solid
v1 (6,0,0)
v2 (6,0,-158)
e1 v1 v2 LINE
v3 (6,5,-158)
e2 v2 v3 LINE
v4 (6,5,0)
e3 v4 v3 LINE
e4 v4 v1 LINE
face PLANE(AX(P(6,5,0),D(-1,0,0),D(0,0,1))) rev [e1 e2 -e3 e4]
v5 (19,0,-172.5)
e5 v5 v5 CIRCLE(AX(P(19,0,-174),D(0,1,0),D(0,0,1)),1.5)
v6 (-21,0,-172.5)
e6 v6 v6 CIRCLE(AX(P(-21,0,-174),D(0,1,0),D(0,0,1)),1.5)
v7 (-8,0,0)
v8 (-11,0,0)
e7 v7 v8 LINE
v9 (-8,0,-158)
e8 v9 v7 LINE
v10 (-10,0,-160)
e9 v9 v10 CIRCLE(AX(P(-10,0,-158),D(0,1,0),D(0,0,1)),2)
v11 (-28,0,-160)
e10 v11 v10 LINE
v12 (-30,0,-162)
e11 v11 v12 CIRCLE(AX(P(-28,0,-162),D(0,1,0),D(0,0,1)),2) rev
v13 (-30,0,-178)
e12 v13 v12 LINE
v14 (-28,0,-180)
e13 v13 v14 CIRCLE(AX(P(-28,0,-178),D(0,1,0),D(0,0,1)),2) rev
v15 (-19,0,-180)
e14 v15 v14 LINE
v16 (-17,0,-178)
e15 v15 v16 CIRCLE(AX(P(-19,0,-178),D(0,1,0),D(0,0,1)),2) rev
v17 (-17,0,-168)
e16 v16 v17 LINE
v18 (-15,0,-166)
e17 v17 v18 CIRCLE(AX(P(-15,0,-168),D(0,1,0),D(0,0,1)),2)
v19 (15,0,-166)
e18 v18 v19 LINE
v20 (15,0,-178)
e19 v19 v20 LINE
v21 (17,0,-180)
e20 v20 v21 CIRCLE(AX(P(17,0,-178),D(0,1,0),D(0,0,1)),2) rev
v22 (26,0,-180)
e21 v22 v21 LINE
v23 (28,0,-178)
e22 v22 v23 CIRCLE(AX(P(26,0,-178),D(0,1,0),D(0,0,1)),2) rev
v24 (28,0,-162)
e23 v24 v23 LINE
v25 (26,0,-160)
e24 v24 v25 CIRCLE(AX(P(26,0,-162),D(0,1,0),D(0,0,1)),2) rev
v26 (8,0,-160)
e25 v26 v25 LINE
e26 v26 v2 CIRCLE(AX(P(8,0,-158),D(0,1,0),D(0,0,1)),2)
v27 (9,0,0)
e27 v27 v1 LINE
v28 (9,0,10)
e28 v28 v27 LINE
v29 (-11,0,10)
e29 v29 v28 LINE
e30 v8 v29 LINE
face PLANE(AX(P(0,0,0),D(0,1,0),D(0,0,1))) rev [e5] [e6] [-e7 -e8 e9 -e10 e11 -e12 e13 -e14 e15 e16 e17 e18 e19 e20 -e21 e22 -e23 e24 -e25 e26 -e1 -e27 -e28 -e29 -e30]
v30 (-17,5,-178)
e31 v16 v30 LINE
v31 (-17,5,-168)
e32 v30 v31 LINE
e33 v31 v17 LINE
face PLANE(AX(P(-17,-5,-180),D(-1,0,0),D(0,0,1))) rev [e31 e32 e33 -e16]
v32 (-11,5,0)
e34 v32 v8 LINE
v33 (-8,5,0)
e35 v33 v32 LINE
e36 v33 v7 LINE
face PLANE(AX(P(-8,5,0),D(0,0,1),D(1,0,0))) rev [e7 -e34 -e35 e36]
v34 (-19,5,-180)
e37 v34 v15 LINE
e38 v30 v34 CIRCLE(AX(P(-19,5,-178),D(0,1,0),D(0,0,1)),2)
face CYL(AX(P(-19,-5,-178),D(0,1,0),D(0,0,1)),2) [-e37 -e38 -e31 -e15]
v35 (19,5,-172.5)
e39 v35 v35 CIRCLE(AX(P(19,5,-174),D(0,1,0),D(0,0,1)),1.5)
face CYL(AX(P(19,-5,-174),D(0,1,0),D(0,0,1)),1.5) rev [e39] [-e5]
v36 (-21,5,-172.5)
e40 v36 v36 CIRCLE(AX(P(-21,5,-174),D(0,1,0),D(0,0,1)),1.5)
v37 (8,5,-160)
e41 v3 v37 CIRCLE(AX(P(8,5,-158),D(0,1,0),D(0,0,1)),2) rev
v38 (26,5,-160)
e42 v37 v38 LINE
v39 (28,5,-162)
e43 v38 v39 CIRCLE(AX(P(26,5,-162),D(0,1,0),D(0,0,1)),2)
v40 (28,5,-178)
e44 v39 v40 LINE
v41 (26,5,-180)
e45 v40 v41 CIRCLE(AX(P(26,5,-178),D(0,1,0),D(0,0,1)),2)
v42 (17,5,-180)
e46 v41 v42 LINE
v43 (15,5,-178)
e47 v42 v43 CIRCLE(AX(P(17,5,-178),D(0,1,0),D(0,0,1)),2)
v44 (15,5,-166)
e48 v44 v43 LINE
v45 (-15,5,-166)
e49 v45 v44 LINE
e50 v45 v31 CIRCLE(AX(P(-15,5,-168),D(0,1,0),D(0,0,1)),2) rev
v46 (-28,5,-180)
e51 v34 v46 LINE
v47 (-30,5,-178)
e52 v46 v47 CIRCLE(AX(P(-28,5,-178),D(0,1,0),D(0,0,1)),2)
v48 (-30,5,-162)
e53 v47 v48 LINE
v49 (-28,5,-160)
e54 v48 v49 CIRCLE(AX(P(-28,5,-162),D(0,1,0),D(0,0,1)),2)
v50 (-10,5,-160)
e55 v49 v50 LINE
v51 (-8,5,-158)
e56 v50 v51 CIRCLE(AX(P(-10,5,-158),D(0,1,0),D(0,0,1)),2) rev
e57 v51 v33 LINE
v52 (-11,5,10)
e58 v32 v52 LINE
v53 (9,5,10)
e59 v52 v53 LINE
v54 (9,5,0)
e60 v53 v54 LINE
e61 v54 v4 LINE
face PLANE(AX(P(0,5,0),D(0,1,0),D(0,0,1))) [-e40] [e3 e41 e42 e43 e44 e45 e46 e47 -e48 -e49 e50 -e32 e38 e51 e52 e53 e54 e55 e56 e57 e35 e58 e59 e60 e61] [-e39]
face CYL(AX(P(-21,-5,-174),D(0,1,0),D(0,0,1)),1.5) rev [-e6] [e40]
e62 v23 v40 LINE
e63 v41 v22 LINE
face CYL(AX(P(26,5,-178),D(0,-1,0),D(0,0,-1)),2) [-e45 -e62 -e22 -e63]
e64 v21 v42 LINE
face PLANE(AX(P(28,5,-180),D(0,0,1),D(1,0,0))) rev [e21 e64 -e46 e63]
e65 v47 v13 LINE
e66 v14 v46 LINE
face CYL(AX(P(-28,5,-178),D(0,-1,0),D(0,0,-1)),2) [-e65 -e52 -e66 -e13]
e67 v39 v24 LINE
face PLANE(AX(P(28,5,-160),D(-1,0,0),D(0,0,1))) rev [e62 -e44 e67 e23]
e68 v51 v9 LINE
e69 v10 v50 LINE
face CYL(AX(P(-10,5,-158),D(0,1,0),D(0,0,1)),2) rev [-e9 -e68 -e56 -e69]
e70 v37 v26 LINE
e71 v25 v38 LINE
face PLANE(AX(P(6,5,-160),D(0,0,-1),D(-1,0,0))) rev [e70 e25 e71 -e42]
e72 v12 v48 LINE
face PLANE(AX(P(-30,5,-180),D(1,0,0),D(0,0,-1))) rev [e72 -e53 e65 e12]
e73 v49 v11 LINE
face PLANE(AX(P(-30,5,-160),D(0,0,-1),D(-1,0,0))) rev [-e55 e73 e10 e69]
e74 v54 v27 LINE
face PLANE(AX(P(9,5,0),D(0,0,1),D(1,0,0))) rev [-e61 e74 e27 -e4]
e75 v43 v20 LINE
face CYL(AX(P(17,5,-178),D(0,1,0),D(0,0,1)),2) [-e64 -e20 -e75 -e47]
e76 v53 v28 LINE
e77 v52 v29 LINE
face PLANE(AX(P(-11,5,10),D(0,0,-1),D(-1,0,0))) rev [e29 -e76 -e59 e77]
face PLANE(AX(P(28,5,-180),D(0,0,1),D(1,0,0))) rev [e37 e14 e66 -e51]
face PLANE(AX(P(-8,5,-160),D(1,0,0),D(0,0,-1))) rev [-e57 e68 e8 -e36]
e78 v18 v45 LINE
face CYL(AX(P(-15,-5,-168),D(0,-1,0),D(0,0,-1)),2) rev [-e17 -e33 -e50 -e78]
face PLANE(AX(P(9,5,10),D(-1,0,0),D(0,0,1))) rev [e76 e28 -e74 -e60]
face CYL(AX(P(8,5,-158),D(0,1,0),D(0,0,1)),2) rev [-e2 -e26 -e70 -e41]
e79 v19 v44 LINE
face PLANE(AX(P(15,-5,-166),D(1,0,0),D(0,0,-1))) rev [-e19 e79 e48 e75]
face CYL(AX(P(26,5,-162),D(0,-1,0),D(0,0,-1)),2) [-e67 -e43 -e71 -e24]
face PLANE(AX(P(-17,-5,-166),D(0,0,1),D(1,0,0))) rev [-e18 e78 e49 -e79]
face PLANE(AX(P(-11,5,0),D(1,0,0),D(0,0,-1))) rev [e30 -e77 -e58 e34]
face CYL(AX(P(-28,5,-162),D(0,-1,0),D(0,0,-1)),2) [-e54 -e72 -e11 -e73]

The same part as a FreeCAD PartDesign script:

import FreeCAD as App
import Part
import Sketcher

V = App.Vector


def edges_at(feature, points):
    """Names of the edges that pass closest to the given points."""
    edges = feature.Shape.Edges
    near = lambda p: min(range(len(edges)), key=lambda i: edges[i].distToShape(Part.Vertex(*p))[0])
    return sorted({f"Edge{near(p) + 1}" for p in points})

doc = App.newDocument("Part")
body = doc.addObject("PartDesign::Body", "Body")

sketch1 = body.newObject("Sketcher::SketchObject", "Sketch")
sketch1.AttachmentSupport = (doc.getObject("XZ_Plane"), [""])
sketch1.MapMode = "FlatFace"
sketch1.addGeometry(Part.LineSegment(V(9, 10, 0), V(9, 0, 0)), False)
sketch1.addGeometry(Part.LineSegment(V(9, 0, 0), V(6, 0, 0)), False)
sketch1.addGeometry(Part.LineSegment(V(6, 0, 0), V(6, -160, 0)), False)
sketch1.addGeometry(Part.LineSegment(V(6, -160, 0), V(28, -160, 0)), False)
sketch1.addGeometry(Part.LineSegment(V(28, -160, 0), V(28, -180, 0)), False)
sketch1.addGeometry(Part.LineSegment(V(28, -180, 0), V(-30, -180, 0)), False)
sketch1.addGeometry(Part.LineSegment(V(-30, -180, 0), V(-30, -160, 0)), False)
sketch1.addGeometry(Part.LineSegment(V(-30, -160, 0), V(-8, -160, 0)), False)
sketch1.addGeometry(Part.LineSegment(V(-8, -160, 0), V(-8, 0, 0)), False)
sketch1.addGeometry(Part.LineSegment(V(-8, 0, 0), V(-11, 0, 0)), False)
sketch1.addGeometry(Part.LineSegment(V(-11, 0, 0), V(-11, 10, 0)), False)
sketch1.addGeometry(Part.LineSegment(V(-11, 10, 0), V(9, 10, 0)), False)
sketch1.addConstraint(Sketcher.Constraint("Coincident", 0, 2, 1, 1))
sketch1.addConstraint(Sketcher.Constraint("Coincident", 1, 2, 2, 1))
sketch1.addConstraint(Sketcher.Constraint("Coincident", 2, 2, 3, 1))
sketch1.addConstraint(Sketcher.Constraint("Coincident", 3, 2, 4, 1))
sketch1.addConstraint(Sketcher.Constraint("Coincident", 4, 2, 5, 1))
sketch1.addConstraint(Sketcher.Constraint("Coincident", 5, 2, 6, 1))
sketch1.addConstraint(Sketcher.Constraint("Coincident", 6, 2, 7, 1))
sketch1.addConstraint(Sketcher.Constraint("Coincident", 7, 2, 8, 1))
sketch1.addConstraint(Sketcher.Constraint("Coincident", 8, 2, 9, 1))
sketch1.addConstraint(Sketcher.Constraint("Coincident", 9, 2, 10, 1))
sketch1.addConstraint(Sketcher.Constraint("Coincident", 10, 2, 11, 1))
sketch1.addConstraint(Sketcher.Constraint("Coincident", 11, 2, 0, 1))
sketch1.addConstraint(Sketcher.Constraint("Vertical", 0))
sketch1.addConstraint(Sketcher.Constraint("Horizontal", 1))
sketch1.addConstraint(Sketcher.Constraint("Vertical", 2))
sketch1.addConstraint(Sketcher.Constraint("Horizontal", 3))
sketch1.addConstraint(Sketcher.Constraint("Vertical", 4))
sketch1.addConstraint(Sketcher.Constraint("Horizontal", 5))
sketch1.addConstraint(Sketcher.Constraint("Vertical", 6))
sketch1.addConstraint(Sketcher.Constraint("Horizontal", 7))
sketch1.addConstraint(Sketcher.Constraint("Vertical", 8))
sketch1.addConstraint(Sketcher.Constraint("Horizontal", 9))
sketch1.addConstraint(Sketcher.Constraint("Vertical", 10))
sketch1.addConstraint(Sketcher.Constraint("Horizontal", 11))
sketch1.addConstraint(Sketcher.Constraint("PointOnObject", 0, 2, -1))
sketch1.addConstraint(Sketcher.Constraint("PointOnObject", 8, 2, -1))
sketch1.addConstraint(Sketcher.Constraint("Horizontal", 3, 2, 6, 2))
sketch1.addConstraint(Sketcher.Constraint("Equal", 3, 7))
sketch1.addConstraint(Sketcher.Constraint("Equal", 1, 9))
sketch1.addConstraint(Sketcher.Constraint("Equal", 11, 4))
sketch1.addConstraint(Sketcher.Constraint("DistanceX", 1, 2, 1, 1, 3.0))
sketch1.addConstraint(Sketcher.Constraint("DistanceX", 3, 1, 3, 2, 22.0))
sketch1.addConstraint(Sketcher.Constraint("DistanceX", 5, 2, 5, 1, 58.0))
sketch1.addConstraint(Sketcher.Constraint("DistanceY", 0, 2, 0, 1, 10.0))
sketch1.addConstraint(Sketcher.Constraint("DistanceY", 2, 2, 2, 1, 160.0))
sketch1.addConstraint(Sketcher.Constraint("DistanceX", -1, 1, 0, 2, 9.0))
pad1 = body.newObject("PartDesign::Pad", "Pad")
pad1.Profile = sketch1
pad1.Length = 5
pad1.Reversed = True

sketch2 = body.newObject("Sketcher::SketchObject", "Sketch001")
sketch2.AttachmentSupport = (doc.getObject("XZ_Plane"), [""])
sketch2.MapMode = "FlatFace"
sketch2.AttachmentOffset = App.Placement(V(0, 0, -5), App.Rotation())
sketch2.addGeometry(Part.Circle(V(-21, -174, 0), V(0, 0, 1), 1.5), False)
sketch2.addGeometry(Part.Circle(V(19, -174, 0), V(0, 0, 1), 1.5), False)
sketch2.addGeometry(Part.LineSegment(V(-17, -180, 0), V(-17, -166, 0)), False)
sketch2.addGeometry(Part.LineSegment(V(-17, -166, 0), V(15, -166, 0)), False)
sketch2.addGeometry(Part.LineSegment(V(15, -166, 0), V(15, -180, 0)), False)
sketch2.addGeometry(Part.LineSegment(V(15, -180, 0), V(-17, -180, 0)), False)
sketch2.addConstraint(Sketcher.Constraint("Coincident", 2, 2, 3, 1))
sketch2.addConstraint(Sketcher.Constraint("Coincident", 3, 2, 4, 1))
sketch2.addConstraint(Sketcher.Constraint("Coincident", 4, 2, 5, 1))
sketch2.addConstraint(Sketcher.Constraint("Coincident", 5, 2, 2, 1))
sketch2.addConstraint(Sketcher.Constraint("Vertical", 2))
sketch2.addConstraint(Sketcher.Constraint("Horizontal", 3))
sketch2.addConstraint(Sketcher.Constraint("Vertical", 4))
sketch2.addConstraint(Sketcher.Constraint("Horizontal", 5))
sketch2.addConstraint(Sketcher.Constraint("Equal", 0, 1))
sketch2.addConstraint(Sketcher.Constraint("Horizontal", 0, 3, 1, 3))
sketch2.addConstraint(Sketcher.Constraint("Diameter", 0, 3.0))
sketch2.addConstraint(Sketcher.Constraint("DistanceX", 3, 1, 3, 2, 32.0))
sketch2.addConstraint(Sketcher.Constraint("DistanceY", 2, 1, 2, 2, 14.0))
sketch2.addConstraint(Sketcher.Constraint("DistanceX", 0, 3, -1, 1, 21.0))
sketch2.addConstraint(Sketcher.Constraint("DistanceY", 0, 3, -1, 1, 174.0))
sketch2.addConstraint(Sketcher.Constraint("DistanceX", -1, 1, 1, 3, 19.0))
sketch2.addConstraint(Sketcher.Constraint("DistanceX", 2, 2, -1, 1, 17.0))
sketch2.addConstraint(Sketcher.Constraint("DistanceY", 2, 2, -1, 1, 166.0))
pocket1 = body.newObject("PartDesign::Pocket", "Pocket")
pocket1.Profile = sketch2
pocket1.Length = 10
pocket1.Reversed = True
doc.recompute()

fillet = body.newObject("PartDesign::Fillet", "Fillet")
fillet.Base = (pocket1, edges_at(pocket1, [
    (-8, 2.5, -160),
    (-30, 2.5, -160),
    (-30, 2.5, -180),
    (28, 2.5, -180),
    (28, 2.5, -160),
    (6, 2.5, -160),
    (15, 2.5, -180),
    (-17, 2.5, -166),
    (-17, 2.5, -180),
]))
fillet.Radius = 2

doc.recompute()
